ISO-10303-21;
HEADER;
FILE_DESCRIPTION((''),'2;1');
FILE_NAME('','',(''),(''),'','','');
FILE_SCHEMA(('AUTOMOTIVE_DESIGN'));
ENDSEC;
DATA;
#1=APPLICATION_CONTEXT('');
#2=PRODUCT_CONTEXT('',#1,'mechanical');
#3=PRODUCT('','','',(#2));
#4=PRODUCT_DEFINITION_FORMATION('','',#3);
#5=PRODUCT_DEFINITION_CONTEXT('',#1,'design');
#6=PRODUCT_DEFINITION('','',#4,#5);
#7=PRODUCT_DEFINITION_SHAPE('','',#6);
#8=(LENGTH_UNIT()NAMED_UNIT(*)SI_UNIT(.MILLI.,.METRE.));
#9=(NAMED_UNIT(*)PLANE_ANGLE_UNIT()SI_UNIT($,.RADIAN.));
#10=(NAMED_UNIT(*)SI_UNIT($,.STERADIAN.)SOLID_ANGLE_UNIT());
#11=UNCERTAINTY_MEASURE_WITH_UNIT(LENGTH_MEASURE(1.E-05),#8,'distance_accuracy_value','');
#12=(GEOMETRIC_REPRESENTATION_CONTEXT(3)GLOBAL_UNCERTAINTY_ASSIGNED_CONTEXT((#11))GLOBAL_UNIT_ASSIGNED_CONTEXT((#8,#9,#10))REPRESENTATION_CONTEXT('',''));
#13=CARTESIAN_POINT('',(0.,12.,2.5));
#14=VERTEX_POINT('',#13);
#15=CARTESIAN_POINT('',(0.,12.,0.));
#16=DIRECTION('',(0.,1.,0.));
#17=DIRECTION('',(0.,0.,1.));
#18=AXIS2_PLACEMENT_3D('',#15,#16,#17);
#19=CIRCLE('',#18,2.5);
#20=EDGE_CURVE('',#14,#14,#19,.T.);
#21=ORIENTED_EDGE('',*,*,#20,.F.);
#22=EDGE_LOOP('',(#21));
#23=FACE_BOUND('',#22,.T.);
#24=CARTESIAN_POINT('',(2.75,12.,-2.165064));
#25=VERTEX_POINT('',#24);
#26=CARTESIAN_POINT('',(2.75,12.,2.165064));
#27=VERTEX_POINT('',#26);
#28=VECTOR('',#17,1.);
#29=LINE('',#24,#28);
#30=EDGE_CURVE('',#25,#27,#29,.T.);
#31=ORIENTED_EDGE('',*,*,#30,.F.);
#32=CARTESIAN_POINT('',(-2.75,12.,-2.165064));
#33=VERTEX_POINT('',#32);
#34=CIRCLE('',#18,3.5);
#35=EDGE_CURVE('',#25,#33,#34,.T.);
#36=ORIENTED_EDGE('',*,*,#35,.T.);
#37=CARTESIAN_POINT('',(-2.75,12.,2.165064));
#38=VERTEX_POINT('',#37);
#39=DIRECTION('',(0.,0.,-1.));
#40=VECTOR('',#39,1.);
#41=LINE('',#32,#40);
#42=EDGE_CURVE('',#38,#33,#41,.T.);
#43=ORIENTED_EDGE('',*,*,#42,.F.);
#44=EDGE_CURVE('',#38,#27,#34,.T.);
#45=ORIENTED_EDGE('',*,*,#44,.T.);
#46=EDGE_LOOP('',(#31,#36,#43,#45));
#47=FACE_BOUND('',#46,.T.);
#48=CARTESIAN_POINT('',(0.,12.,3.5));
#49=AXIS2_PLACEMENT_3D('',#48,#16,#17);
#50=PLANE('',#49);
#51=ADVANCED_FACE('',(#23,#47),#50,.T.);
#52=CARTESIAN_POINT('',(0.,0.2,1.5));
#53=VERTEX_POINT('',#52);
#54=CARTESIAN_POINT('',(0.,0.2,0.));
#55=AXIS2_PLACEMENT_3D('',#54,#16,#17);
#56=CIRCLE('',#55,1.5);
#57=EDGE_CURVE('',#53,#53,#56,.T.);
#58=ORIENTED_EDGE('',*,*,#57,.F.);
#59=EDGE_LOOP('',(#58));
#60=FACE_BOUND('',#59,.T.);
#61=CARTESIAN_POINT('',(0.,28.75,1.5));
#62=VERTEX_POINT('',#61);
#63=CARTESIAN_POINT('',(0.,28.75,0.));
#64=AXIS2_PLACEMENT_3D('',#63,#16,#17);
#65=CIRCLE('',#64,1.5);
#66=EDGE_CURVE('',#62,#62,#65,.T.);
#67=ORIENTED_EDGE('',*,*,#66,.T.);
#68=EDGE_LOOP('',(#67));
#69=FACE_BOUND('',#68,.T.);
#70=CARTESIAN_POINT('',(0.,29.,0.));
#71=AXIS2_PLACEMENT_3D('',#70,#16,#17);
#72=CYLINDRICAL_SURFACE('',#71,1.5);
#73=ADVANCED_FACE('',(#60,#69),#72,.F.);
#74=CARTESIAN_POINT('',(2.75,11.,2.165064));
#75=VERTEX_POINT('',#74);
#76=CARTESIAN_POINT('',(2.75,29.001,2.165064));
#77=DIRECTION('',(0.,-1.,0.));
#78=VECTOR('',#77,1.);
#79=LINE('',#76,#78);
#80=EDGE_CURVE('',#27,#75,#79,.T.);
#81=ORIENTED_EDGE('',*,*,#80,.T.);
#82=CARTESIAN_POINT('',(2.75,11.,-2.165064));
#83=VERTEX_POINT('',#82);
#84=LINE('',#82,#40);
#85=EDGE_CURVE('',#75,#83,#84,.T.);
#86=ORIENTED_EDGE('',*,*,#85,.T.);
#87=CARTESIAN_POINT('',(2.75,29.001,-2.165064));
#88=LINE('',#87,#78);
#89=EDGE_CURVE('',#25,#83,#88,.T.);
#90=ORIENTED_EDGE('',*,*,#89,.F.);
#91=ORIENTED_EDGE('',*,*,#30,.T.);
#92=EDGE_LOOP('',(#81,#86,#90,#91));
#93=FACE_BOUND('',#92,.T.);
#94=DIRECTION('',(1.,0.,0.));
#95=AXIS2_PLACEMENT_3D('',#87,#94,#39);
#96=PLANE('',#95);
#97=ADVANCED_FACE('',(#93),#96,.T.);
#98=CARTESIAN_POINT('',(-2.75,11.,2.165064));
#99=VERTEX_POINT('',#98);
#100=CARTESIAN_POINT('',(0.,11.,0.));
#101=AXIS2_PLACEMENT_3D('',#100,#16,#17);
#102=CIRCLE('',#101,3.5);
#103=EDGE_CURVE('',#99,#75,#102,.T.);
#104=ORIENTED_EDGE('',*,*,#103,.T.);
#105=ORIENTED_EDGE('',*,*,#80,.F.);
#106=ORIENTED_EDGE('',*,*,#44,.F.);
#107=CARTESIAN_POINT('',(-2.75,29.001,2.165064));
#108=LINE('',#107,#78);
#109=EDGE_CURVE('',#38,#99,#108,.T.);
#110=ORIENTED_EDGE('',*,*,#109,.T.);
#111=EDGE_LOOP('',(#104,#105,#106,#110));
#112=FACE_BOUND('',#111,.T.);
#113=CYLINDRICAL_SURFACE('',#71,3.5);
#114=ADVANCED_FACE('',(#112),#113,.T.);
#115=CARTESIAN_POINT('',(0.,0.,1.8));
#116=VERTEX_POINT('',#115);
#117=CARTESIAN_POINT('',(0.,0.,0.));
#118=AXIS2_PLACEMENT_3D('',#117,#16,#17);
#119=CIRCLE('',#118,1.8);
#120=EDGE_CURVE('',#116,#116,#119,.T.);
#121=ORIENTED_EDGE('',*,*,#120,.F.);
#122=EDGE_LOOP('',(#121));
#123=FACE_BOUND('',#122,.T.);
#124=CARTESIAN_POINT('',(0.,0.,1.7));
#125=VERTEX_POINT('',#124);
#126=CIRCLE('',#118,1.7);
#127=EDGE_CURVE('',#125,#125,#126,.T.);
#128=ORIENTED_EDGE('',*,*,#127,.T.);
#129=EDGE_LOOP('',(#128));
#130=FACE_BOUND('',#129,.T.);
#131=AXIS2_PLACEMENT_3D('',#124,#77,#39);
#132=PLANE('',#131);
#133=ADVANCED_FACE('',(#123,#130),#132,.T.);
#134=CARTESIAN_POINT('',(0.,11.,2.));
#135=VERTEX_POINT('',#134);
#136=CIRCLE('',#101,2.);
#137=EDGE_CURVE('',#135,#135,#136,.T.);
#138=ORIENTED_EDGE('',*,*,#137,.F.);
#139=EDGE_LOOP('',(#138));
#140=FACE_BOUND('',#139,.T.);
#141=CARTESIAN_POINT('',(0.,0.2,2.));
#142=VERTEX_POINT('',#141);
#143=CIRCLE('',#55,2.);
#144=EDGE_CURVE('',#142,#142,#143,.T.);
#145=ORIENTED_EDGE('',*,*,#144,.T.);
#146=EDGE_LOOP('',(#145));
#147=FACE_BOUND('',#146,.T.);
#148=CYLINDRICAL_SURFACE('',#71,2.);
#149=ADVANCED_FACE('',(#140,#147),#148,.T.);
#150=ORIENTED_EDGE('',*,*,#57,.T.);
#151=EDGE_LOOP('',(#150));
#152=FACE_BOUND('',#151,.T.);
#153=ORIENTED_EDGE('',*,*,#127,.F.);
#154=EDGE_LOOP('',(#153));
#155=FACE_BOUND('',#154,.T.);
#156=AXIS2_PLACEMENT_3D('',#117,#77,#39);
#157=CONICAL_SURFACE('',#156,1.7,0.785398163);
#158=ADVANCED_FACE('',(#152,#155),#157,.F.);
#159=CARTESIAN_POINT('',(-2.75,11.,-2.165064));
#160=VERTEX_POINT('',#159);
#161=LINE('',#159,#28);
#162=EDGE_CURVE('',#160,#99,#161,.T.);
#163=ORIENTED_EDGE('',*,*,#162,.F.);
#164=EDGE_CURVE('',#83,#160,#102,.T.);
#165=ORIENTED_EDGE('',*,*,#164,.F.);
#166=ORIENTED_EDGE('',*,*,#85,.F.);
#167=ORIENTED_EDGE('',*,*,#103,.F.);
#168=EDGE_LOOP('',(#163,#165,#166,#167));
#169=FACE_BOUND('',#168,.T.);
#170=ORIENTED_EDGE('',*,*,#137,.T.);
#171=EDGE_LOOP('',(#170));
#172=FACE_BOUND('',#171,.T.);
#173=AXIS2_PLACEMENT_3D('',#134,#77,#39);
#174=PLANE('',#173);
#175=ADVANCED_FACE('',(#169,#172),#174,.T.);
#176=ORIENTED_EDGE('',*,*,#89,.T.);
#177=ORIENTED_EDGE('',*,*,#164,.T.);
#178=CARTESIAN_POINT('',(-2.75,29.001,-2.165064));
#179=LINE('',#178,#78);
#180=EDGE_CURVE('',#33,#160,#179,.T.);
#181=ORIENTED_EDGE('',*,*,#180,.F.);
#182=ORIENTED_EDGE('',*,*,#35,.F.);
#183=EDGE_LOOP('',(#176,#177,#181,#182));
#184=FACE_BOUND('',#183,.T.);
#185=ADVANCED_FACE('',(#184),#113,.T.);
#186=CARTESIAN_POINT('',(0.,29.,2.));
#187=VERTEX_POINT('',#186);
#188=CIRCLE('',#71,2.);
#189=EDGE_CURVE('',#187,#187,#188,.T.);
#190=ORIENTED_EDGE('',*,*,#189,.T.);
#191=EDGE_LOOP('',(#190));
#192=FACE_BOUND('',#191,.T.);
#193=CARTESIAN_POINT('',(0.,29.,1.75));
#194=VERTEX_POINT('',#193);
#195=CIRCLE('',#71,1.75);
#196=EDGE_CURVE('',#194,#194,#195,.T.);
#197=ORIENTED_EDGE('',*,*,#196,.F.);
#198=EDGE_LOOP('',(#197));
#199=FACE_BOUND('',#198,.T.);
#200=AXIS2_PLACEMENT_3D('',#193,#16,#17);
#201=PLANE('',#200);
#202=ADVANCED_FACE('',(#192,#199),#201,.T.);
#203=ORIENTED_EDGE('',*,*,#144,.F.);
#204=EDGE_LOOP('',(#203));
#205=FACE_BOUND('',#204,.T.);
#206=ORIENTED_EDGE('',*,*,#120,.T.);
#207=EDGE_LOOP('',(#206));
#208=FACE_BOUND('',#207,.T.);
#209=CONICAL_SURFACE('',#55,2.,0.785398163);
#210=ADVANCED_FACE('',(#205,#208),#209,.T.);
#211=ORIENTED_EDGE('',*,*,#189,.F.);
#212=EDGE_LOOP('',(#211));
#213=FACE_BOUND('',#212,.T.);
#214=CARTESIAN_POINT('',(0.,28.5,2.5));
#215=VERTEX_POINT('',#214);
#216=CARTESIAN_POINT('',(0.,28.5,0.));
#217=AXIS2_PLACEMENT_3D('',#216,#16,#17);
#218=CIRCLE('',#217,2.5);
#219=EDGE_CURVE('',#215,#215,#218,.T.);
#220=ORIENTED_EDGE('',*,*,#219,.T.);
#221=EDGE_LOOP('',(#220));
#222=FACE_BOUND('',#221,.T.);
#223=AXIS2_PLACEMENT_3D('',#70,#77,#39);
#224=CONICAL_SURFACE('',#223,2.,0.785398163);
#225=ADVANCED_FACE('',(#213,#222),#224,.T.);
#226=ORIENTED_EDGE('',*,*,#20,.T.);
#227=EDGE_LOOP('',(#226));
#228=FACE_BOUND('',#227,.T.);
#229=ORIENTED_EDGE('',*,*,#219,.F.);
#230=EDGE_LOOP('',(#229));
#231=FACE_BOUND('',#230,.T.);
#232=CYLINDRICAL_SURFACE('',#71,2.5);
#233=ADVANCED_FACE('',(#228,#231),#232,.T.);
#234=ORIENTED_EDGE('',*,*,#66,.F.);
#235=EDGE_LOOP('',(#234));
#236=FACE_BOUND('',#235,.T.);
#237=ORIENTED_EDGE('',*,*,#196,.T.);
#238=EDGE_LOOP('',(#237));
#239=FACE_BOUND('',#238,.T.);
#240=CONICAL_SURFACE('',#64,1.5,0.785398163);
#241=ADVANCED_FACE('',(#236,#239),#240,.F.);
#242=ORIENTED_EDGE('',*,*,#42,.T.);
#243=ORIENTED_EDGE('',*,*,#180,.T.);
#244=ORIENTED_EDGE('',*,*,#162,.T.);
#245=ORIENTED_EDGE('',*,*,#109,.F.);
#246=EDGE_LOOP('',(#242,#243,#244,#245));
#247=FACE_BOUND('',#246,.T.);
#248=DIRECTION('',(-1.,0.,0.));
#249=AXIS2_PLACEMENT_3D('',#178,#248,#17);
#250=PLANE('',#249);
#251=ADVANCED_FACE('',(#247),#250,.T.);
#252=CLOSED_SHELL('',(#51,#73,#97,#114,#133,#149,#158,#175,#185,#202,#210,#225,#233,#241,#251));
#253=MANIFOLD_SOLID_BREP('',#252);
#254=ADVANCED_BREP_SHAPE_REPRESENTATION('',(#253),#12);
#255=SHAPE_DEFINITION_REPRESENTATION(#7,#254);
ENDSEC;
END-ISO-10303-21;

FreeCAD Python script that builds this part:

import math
import FreeCAD as App
import Part
import Sketcher

doc = App.newDocument("Part")
body = doc.addObject("PartDesign::Body", "Body")

# Sketch on YZ plane
sketch1 = body.newObject("Sketcher::SketchObject", "Sketch")
sketch1.AttachmentSupport = (doc.getObject("YZ_Plane"), [""])
sketch1.MapMode = "FlatFace"
sketch1.addGeometry(Part.LineSegment(App.Vector(0.2, 1.5, 0), App.Vector(28.75, 1.5, 0)), False)
sketch1.addGeometry(Part.LineSegment(App.Vector(28.75, 1.5, 0), App.Vector(29, 1.75, 0)), False)
sketch1.addGeometry(Part.LineSegment(App.Vector(29, 1.75, 0), App.Vector(29, 2, 0)), False)
sketch1.addGeometry(Part.LineSegment(App.Vector(29, 2, 0), App.Vector(28.5, 2.5, 0)), False)
sketch1.addGeometry(Part.LineSegment(App.Vector(28.5, 2.5, 0), App.Vector(12, 2.5, 0)), False)
sketch1.addGeometry(Part.LineSegment(App.Vector(12, 2.5, 0), App.Vector(12, 3.5, 0)), False)
sketch1.addGeometry(Part.LineSegment(App.Vector(12, 3.5, 0), App.Vector(11, 3.5, 0)), False)
sketch1.addGeometry(Part.LineSegment(App.Vector(11, 3.5, 0), App.Vector(11, 2, 0)), False)
sketch1.addGeometry(Part.LineSegment(App.Vector(11, 2, 0), App.Vector(0.2, 2, 0)), False)
sketch1.addGeometry(Part.LineSegment(App.Vector(0.2, 2, 0), App.Vector(0, 1.8, 0)), False)
sketch1.addGeometry(Part.LineSegment(App.Vector(0, 1.8, 0), App.Vector(0, 1.7, 0)), False)
sketch1.addGeometry(Part.LineSegment(App.Vector(0, 1.7, 0), App.Vector(0.2, 1.5, 0)), False)
sketch1.addConstraint(Sketcher.Constraint("Coincident", 0, 2, 1, 1))
sketch1.addConstraint(Sketcher.Constraint("Coincident", 1, 2, 2, 1))
sketch1.addConstraint(Sketcher.Constraint("Coincident", 2, 2, 3, 1))
sketch1.addConstraint(Sketcher.Constraint("Coincident", 3, 2, 4, 1))
sketch1.addConstraint(Sketcher.Constraint("Coincident", 4, 2, 5, 1))
sketch1.addConstraint(Sketcher.Constraint("Coincident", 5, 2, 6, 1))
sketch1.addConstraint(Sketcher.Constraint("Coincident", 6, 2, 7, 1))
sketch1.addConstraint(Sketcher.Constraint("Coincident", 7, 2, 8, 1))
sketch1.addConstraint(Sketcher.Constraint("Coincident", 8, 2, 9, 1))
sketch1.addConstraint(Sketcher.Constraint("Coincident", 9, 2, 10, 1))
sketch1.addConstraint(Sketcher.Constraint("Coincident", 10, 2, 11, 1))
sketch1.addConstraint(Sketcher.Constraint("Coincident", 11, 2, 0, 1))
sketch1.addConstraint(Sketcher.Constraint("Horizontal", 0))
sketch1.addConstraint(Sketcher.Constraint("Vertical", 2))
sketch1.addConstraint(Sketcher.Constraint("Horizontal", 4))
sketch1.addConstraint(Sketcher.Constraint("Vertical", 5))
sketch1.addConstraint(Sketcher.Constraint("Horizontal", 6))
sketch1.addConstraint(Sketcher.Constraint("Vertical", 7))
sketch1.addConstraint(Sketcher.Constraint("Horizontal", 8))
sketch1.addConstraint(Sketcher.Constraint("Vertical", 10))
sketch1.addConstraint(Sketcher.Constraint("PointOnObject", 9, 2, -2))
sketch1.addConstraint(Sketcher.Constraint("Perpendicular", 1, 3))
sketch1.addConstraint(Sketcher.Constraint("Perpendicular", 3, 9))
sketch1.addConstraint(Sketcher.Constraint("Perpendicular", 9, 11))
sketch1.addConstraint(Sketcher.Constraint("Horizontal", 2, 2, 7, 2))
sketch1.addConstraint(Sketcher.Constraint("Vertical", 8, 2, 11, 2))
sketch1.addConstraint(Sketcher.Constraint("Equal", 6, 5))
sketch1.addConstraint(Sketcher.Constraint("Equal", 9, 11))
sketch1.addConstraint(Sketcher.Constraint("DistanceX", 6, 2, 6, 1, 1.0))
sketch1.addConstraint(Sketcher.Constraint("DistanceX", 4, 2, 4, 1, 16.5))
sketch1.addConstraint(Sketcher.Constraint("DistanceX", 8, 2, 8, 1, 10.8))
sketch1.addConstraint(Sketcher.Constraint("DistanceY", 7, 2, 7, 1, 1.5))
sketch1.addConstraint(Sketcher.Constraint("DistanceY", 10, 2, 10, 1, 0.1))
sketch1.addConstraint(Sketcher.Constraint("DistanceX", -1, 1, 1, 2, 29.0))
sketch1.addConstraint(Sketcher.Constraint("DistanceY", -1, 1, 2, 2, 2.0))
sketch1.addConstraint(Sketcher.Constraint("DistanceX", 0, 1, 0, 2, 28.55))
revolution = body.newObject("PartDesign::Revolution", "Revolution")
revolution.Profile = sketch1
revolution.ReferenceAxis = (sketch1, ["H_Axis"])
revolution.Angle = 360

# Sketch on XZ plane
sketch2 = body.newObject("Sketcher::SketchObject", "Sketch001")
sketch2.AttachmentSupport = (doc.getObject("XZ_Plane"), [""])
sketch2.MapMode = "FlatFace"
sketch2.addGeometry(Part.LineSegment(App.Vector(-2.75, 2.165064, 0), App.Vector(-2.75, -2.165064, 0)), False)
sketch2.addGeometry(Part.ArcOfCircle(Part.Circle(App.Vector(0, 0, 0), App.Vector(0, 0, 1), 3.5), math.radians(141.786789), math.radians(218.213211)), False)
sketch2.addConstraint(Sketcher.Constraint("Coincident", 0, 1, 1, 1))
sketch2.addConstraint(Sketcher.Constraint("Coincident", 1, 2, 0, 2))
sketch2.addConstraint(Sketcher.Constraint("Vertical", 0))
sketch2.addConstraint(Sketcher.Constraint("Coincident", 1, 3, -1, 1))
sketch2.addConstraint(Sketcher.Constraint("Radius", 1, 3.5))
sketch2.addConstraint(Sketcher.Constraint("DistanceX", 0, 1, -1, 1, 2.75))
pocket1 = body.newObject("PartDesign::Pocket", "Pocket")
pocket1.Profile = sketch2
pocket1.Length = 12

# Sketch on XZ plane
sketch3 = body.newObject("Sketcher::SketchObject", "Sketch002")
sketch3.AttachmentSupport = (doc.getObject("XZ_Plane"), [""])
sketch3.MapMode = "FlatFace"
sketch3.addGeometry(Part.LineSegment(App.Vector(2.75, -2.165064, 0), App.Vector(2.75, 2.165064, 0)), False)
sketch3.addGeometry(Part.ArcOfCircle(Part.Circle(App.Vector(0, 0, 0), App.Vector(0, 0, 1), 3.5), math.radians(-38.213211), math.radians(38.213211)), False)
sketch3.addConstraint(Sketcher.Constraint("Coincident", 0, 1, 1, 1))
sketch3.addConstraint(Sketcher.Constraint("Coincident", 1, 2, 0, 2))
sketch3.addConstraint(Sketcher.Constraint("Vertical", 0))
sketch3.addConstraint(Sketcher.Constraint("Coincident", 1, 3, -1, 1))
sketch3.addConstraint(Sketcher.Constraint("Radius", 1, 3.5))
sketch3.addConstraint(Sketcher.Constraint("DistanceX", -1, 1, 0, 1, 2.75))
pocket2 = body.newObject("PartDesign::Pocket", "Pocket001")
pocket2.Profile = sketch3
pocket2.Length = 12

doc.recompute()
